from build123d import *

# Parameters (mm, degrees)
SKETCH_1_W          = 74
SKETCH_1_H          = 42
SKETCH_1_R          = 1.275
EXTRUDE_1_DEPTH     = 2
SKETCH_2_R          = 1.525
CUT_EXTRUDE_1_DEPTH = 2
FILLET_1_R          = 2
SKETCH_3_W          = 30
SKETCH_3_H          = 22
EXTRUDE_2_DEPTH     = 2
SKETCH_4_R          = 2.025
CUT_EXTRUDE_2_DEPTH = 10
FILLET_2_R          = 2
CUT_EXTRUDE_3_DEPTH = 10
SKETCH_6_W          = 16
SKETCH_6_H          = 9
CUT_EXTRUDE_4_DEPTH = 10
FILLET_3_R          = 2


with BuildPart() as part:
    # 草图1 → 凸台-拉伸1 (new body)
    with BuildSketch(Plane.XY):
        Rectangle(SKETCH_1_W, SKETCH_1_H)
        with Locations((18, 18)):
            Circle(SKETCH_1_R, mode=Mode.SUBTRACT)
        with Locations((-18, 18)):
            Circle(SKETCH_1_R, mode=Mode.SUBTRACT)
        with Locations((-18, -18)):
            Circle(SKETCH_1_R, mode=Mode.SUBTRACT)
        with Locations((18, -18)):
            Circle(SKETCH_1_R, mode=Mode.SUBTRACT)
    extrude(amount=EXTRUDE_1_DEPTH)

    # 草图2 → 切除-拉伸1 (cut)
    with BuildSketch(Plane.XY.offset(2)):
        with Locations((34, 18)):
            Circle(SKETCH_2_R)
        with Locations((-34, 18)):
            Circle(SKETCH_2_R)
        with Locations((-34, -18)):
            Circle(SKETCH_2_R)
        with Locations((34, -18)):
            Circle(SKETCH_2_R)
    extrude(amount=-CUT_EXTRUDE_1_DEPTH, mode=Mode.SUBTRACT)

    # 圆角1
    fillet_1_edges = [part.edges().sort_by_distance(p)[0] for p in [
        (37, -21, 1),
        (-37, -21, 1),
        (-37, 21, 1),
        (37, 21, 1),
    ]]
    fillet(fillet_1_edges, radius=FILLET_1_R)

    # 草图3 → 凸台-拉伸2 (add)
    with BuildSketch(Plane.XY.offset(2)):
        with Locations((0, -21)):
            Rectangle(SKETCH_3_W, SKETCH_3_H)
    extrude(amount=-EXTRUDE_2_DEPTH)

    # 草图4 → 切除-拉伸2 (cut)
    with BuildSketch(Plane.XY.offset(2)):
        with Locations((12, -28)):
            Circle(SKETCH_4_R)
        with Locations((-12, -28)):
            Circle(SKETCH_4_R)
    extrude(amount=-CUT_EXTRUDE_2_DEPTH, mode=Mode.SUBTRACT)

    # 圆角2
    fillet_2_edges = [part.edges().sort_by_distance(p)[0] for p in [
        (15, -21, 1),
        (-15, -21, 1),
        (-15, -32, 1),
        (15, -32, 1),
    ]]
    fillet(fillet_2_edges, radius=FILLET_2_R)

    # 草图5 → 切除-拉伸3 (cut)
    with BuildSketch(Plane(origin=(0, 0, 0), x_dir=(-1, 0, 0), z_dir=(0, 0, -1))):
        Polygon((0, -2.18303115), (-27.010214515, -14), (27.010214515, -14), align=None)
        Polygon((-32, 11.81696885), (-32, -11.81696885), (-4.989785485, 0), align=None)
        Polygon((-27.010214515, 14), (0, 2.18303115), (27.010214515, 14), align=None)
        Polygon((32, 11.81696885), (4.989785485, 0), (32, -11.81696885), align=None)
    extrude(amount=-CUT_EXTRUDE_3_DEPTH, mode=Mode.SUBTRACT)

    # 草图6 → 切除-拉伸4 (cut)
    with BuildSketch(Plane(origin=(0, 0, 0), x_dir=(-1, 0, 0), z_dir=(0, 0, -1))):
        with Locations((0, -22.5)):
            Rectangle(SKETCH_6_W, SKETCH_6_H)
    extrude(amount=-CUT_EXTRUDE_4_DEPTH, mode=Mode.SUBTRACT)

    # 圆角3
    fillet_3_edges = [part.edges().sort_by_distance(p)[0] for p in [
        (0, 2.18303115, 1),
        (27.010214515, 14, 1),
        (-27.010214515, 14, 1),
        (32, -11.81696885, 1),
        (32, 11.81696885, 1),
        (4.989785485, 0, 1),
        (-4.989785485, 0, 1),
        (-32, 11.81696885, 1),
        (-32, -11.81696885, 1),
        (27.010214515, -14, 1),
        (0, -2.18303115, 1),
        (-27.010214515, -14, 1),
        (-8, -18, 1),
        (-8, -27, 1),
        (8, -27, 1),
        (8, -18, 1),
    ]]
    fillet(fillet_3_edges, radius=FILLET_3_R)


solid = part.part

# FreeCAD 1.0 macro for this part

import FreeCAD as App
import Part
import Sketcher
from FreeCAD import Vector
Q = App.Units.Quantity


def edges_at(feature, points):
    """Names of the edges that pass closest to the given points."""
    edges = feature.Shape.Edges
    near = lambda p: min(range(len(edges)), key=lambda i: edges[i].distToShape(Part.Vertex(*p))[0])
    return sorted({f"Edge{near(p) + 1}" for p in points})

doc = App.newDocument("Part")
body = doc.addObject("PartDesign::Body", "Body")

sketch1 = body.newObject("Sketcher::SketchObject", "Sketch")
sketch1.AttachmentSupport = (doc.getObject("XY_Plane"), [""])
sketch1.MapMode = "FlatFace"
sketch1.addGeometry(Part.LineSegment(Vector(-37, 21, 0), Vector(-37, -21, 0)), False)
sketch1.addGeometry(Part.LineSegment(Vector(-37, -21, 0), Vector(37, -21, 0)), False)
sketch1.addGeometry(Part.LineSegment(Vector(37, -21, 0), Vector(37, 21, 0)), False)
sketch1.addGeometry(Part.LineSegment(Vector(37, 21, 0), Vector(-37, 21, 0)), False)
sketch1.addGeometry(Part.Circle(Vector(-18, -18, 0), Vector(0, 0, 1), 1.3), False)
sketch1.addGeometry(Part.Circle(Vector(18, -18, 0), Vector(0, 0, 1), 1.3), False)
sketch1.addGeometry(Part.Circle(Vector(-18, 18, 0), Vector(0, 0, 1), 1.3), False)
sketch1.addGeometry(Part.Circle(Vector(18, 18, 0), Vector(0, 0, 1), 1.3), False)
sketch1.addConstraint(Sketcher.Constraint("Coincident", 0, 2, 1, 1))
sketch1.addConstraint(Sketcher.Constraint("Coincident", 1, 2, 2, 1))
sketch1.addConstraint(Sketcher.Constraint("Coincident", 2, 2, 3, 1))
sketch1.addConstraint(Sketcher.Constraint("Coincident", 3, 2, 0, 1))
sketch1.addConstraint(Sketcher.Constraint("Vertical", 0))
sketch1.addConstraint(Sketcher.Constraint("Horizontal", 1))
sketch1.addConstraint(Sketcher.Constraint("Vertical", 2))
sketch1.addConstraint(Sketcher.Constraint("Horizontal", 3))
sketch1.addConstraint(Sketcher.Constraint("Equal", 4, 5))
sketch1.addConstraint(Sketcher.Constraint("Equal", 5, 6))
sketch1.addConstraint(Sketcher.Constraint("Equal", 6, 7))
sketch1.addConstraint(Sketcher.Constraint("Symmetric", 5, 3, 6, 3, -1, 1))
sketch1.addConstraint(Sketcher.Constraint("Symmetric", 4, 3, 7, 3, -1, 1))
sketch1.addConstraint(Sketcher.Constraint("Symmetric", 0, 2, 2, 2, -1, 1))
sketch1.addConstraint(Sketcher.Constraint("Symmetric", 4, 3, 5, 3, -2))
sketch1.addConstraint(Sketcher.Constraint("Diameter", 4, Q("2.55 mm")))
sketch1.addConstraint(Sketcher.Constraint("DistanceX", 1, 1, 1, 2, Q("74 mm")))
sketch1.addConstraint(Sketcher.Constraint("DistanceY", 0, 2, 0, 1, Q("42 mm")))
sketch1.addConstraint(Sketcher.Constraint("DistanceX", 4, 3, -1, 1, Q("18 mm")))
sketch1.addConstraint(Sketcher.Constraint("DistanceY", 4, 3, -1, 1, Q("18 mm")))
pad1 = body.newObject("PartDesign::Pad", "Pad")
pad1.Profile = sketch1
pad1.Length = 2

sketch2 = body.newObject("Sketcher::SketchObject", "Sketch001")
sketch2.AttachmentSupport = (doc.getObject("XY_Plane"), [""])
sketch2.MapMode = "FlatFace"
sketch2.AttachmentOffset = App.Placement(Vector(0, 0, 2), App.Rotation())
sketch2.addGeometry(Part.Circle(Vector(34, 18, 0), Vector(0, 0, 1), 1.5), False)
sketch2.addGeometry(Part.Circle(Vector(-34, 18, 0), Vector(0, 0, 1), 1.5), False)
sketch2.addGeometry(Part.Circle(Vector(-34, -18, 0), Vector(0, 0, 1), 1.5), False)
sketch2.addGeometry(Part.Circle(Vector(34, -18, 0), Vector(0, 0, 1), 1.5), False)
sketch2.addConstraint(Sketcher.Constraint("Equal", 0, 1))
sketch2.addConstraint(Sketcher.Constraint("Equal", 1, 2))
sketch2.addConstraint(Sketcher.Constraint("Equal", 2, 3))
sketch2.addConstraint(Sketcher.Constraint("Symmetric", 0, 3, 2, 3, -1, 1))
sketch2.addConstraint(Sketcher.Constraint("Symmetric", 1, 3, 3, 3, -1, 1))
sketch2.addConstraint(Sketcher.Constraint("Symmetric", 0, 3, 1, 3, -2))
sketch2.addConstraint(Sketcher.Constraint("Diameter", 0, Q("3.05 mm")))
sketch2.addConstraint(Sketcher.Constraint("DistanceX", -1, 1, 0, 3, Q("34 mm")))
sketch2.addConstraint(Sketcher.Constraint("DistanceY", -1, 1, 0, 3, Q("18 mm")))
pocket1 = body.newObject("PartDesign::Pocket", "Pocket")
pocket1.Profile = sketch2
pocket1.Length = 2
doc.recompute()

fillet = body.newObject("PartDesign::Fillet", "Fillet")
fillet.Base = (pocket1, edges_at(pocket1, [
    (37, -21, 1),
    (-37, -21, 1),
    (-37, 21, 1),
    (37, 21, 1),
]))
fillet.Radius = 2

sketch3 = body.newObject("Sketcher::SketchObject", "Sketch002")
sketch3.AttachmentSupport = (doc.getObject("XY_Plane"), [""])
sketch3.MapMode = "FlatFace"
sketch3.AttachmentOffset = App.Placement(Vector(0, 0, 2), App.Rotation())
sketch3.addGeometry(Part.LineSegment(Vector(-15, -10, 0), Vector(-15, -32, 0)), False)
sketch3.addGeometry(Part.LineSegment(Vector(-15, -32, 0), Vector(15, -32, 0)), False)
sketch3.addGeometry(Part.LineSegment(Vector(15, -32, 0), Vector(15, -10, 0)), False)
sketch3.addGeometry(Part.LineSegment(Vector(15, -10, 0), Vector(-15, -10, 0)), False)
sketch3.addConstraint(Sketcher.Constraint("Coincident", 0, 2, 1, 1))
sketch3.addConstraint(Sketcher.Constraint("Coincident", 1, 2, 2, 1))
sketch3.addConstraint(Sketcher.Constraint("Coincident", 2, 2, 3, 1))
sketch3.addConstraint(Sketcher.Constraint("Coincident", 3, 2, 0, 1))
sketch3.addConstraint(Sketcher.Constraint("Vertical", 0))
sketch3.addConstraint(Sketcher.Constraint("Horizontal", 1))
sketch3.addConstraint(Sketcher.Constraint("Vertical", 2))
sketch3.addConstraint(Sketcher.Constraint("Horizontal", 3))
sketch3.addConstraint(Sketcher.Constraint("DistanceX", 1, 1, 1, 2, Q("30 mm")))
sketch3.addConstraint(Sketcher.Constraint("DistanceY", 0, 2, 0, 1, Q("22 mm")))
sketch3.addConstraint(Sketcher.Constraint("DistanceX", 0, 2, -1, 1, Q("15 mm")))
sketch3.addConstraint(Sketcher.Constraint("DistanceY", 0, 2, -1, 1, Q("32 mm")))
pad2 = body.newObject("PartDesign::Pad", "Pad001")
pad2.Profile = sketch3
pad2.Length = 2
pad2.Reversed = True

sketch4 = body.newObject("Sketcher::SketchObject", "Sketch003")
sketch4.AttachmentSupport = (doc.getObject("XY_Plane"), [""])
sketch4.MapMode = "FlatFace"
sketch4.AttachmentOffset = App.Placement(Vector(0, 0, 2), App.Rotation())
sketch4.addGeometry(Part.Circle(Vector(12, -28, 0), Vector(0, 0, 1), 2), False)
sketch4.addGeometry(Part.Circle(Vector(-12, -28, 0), Vector(0, 0, 1), 2), False)
sketch4.addConstraint(Sketcher.Constraint("Equal", 0, 1))
sketch4.addConstraint(Sketcher.Constraint("Symmetric", 0, 3, 1, 3, -2))
sketch4.addConstraint(Sketcher.Constraint("Diameter", 0, Q("4.05 mm")))
sketch4.addConstraint(Sketcher.Constraint("DistanceX", -1, 1, 0, 3, Q("12 mm")))
sketch4.addConstraint(Sketcher.Constraint("DistanceY", 0, 3, -1, 1, Q("28 mm")))
pocket2 = body.newObject("PartDesign::Pocket", "Pocket001")
pocket2.Profile = sketch4
pocket2.Length = 10
doc.recompute()

fillet2 = body.newObject("PartDesign::Fillet", "Fillet001")
fillet2.Base = (pocket2, edges_at(pocket2, [
    (15, -21, 1),
    (-15, -21, 1),
    (-15, -32, 1),
    (15, -32, 1),
]))
fillet2.Radius = 2

sketch5 = body.newObject("Sketcher::SketchObject", "Sketch004")
sketch5.AttachmentSupport = (doc.getObject("XY_Plane"), [""])
sketch5.MapMode = "FlatFace"
sketch5.addGeometry(Part.LineSegment(Vector(0, -2, 0), Vector(27, -14, 0)), False)
sketch5.addGeometry(Part.LineSegment(Vector(27, -14, 0), Vector(-27, -14, 0)), False)
sketch5.addGeometry(Part.LineSegment(Vector(-27, -14, 0), Vector(0, -2, 0)), False)
sketch5.addGeometry(Part.LineSegment(Vector(32, 12, 0), Vector(32, -12, 0)), False)
sketch5.addGeometry(Part.LineSegment(Vector(32, -12, 0), Vector(5, 0, 0)), False)
sketch5.addGeometry(Part.LineSegment(Vector(5, 0, 0), Vector(32, 12, 0)), False)
sketch5.addGeometry(Part.LineSegment(Vector(27, 14, 0), Vector(0, 2, 0)), False)
sketch5.addGeometry(Part.LineSegment(Vector(0, 2, 0), Vector(-27, 14, 0)), False)
sketch5.addGeometry(Part.LineSegment(Vector(-27, 14, 0), Vector(27, 14, 0)), False)
sketch5.addGeometry(Part.LineSegment(Vector(-32, 12, 0), Vector(-5, 0, 0)), False)
sketch5.addGeometry(Part.LineSegment(Vector(-5, 0, 0), Vector(-32, -12, 0)), False)
sketch5.addGeometry(Part.LineSegment(Vector(-32, -12, 0), Vector(-32, 12, 0)), False)
sketch5.addConstraint(Sketcher.Constraint("Coincident", 0, 2, 1, 1))
sketch5.addConstraint(Sketcher.Constraint("Coincident", 1, 2, 2, 1))
sketch5.addConstraint(Sketcher.Constraint("Coincident", 2, 2, 0, 1))
sketch5.addConstraint(Sketcher.Constraint("Coincident", 3, 2, 4, 1))
sketch5.addConstraint(Sketcher.Constraint("Coincident", 4, 2, 5, 1))
sketch5.addConstraint(Sketcher.Constraint("Coincident", 5, 2, 3, 1))
sketch5.addConstraint(Sketcher.Constraint("Coincident", 6, 2, 7, 1))
sketch5.addConstraint(Sketcher.Constraint("Coincident", 7, 2, 8, 1))
sketch5.addConstraint(Sketcher.Constraint("Coincident", 8, 2, 6, 1))
sketch5.addConstraint(Sketcher.Constraint("Coincident", 9, 2, 10, 1))
sketch5.addConstraint(Sketcher.Constraint("Coincident", 10, 2, 11, 1))
sketch5.addConstraint(Sketcher.Constraint("Coincident", 11, 2, 9, 1))
sketch5.addConstraint(Sketcher.Constraint("Horizontal", 1))
sketch5.addConstraint(Sketcher.Constraint("Vertical", 3))
sketch5.addConstraint(Sketcher.Constraint("Horizontal", 8))
sketch5.addConstraint(Sketcher.Constraint("Vertical", 11))
sketch5.addConstraint(Sketcher.Constraint("Symmetric", 2, 2, 6, 2, -1, 1))
sketch5.addConstraint(Sketcher.Constraint("Symmetric", 0, 2, 7, 2, -1, 1))
sketch5.addConstraint(Sketcher.Constraint("Symmetric", 4, 2, 9, 2, -1, 1))
sketch5.addConstraint(Sketcher.Constraint("Symmetric", 5, 2, 10, 2, -1, 1))
sketch5.addConstraint(Sketcher.Constraint("PointOnObject", 2, 2, -2))
sketch5.addConstraint(Sketcher.Constraint("PointOnObject", 4, 2, -1))
sketch5.addConstraint(Sketcher.Constraint("Parallel", 0, 4))
sketch5.addConstraint(Sketcher.Constraint("Parallel", 2, 5))
sketch5.addConstraint(Sketcher.Constraint("Parallel", 5, 6))
sketch5.addConstraint(Sketcher.Constraint("Parallel", 7, 9))
sketch5.addConstraint(Sketcher.Constraint("Horizontal", 3, 2, 10, 2))
sketch5.addConstraint(Sketcher.Constraint("Equal", 2, 4))
sketch5.addConstraint(Sketcher.Constraint("DistanceY", 0, 2, -1, 1, Q("14 mm")))
sketch5.addConstraint(Sketcher.Constraint("DistanceX", -1, 1, 3, 2, Q("32 mm")))
sketch5.addConstraint(Sketcher.Constraint("DistanceX", 1, 2, 1, 1, Q("54.020429 mm")))
sketch5.addConstraint(Sketcher.Constraint("Distance", 0, Q("29.48207 mm")))
pocket3 = body.newObject("PartDesign::Pocket", "Pocket002")
pocket3.Profile = sketch5
pocket3.Length = 10
pocket3.Reversed = True

sketch6 = body.newObject("Sketcher::SketchObject", "Sketch005")
sketch6.AttachmentSupport = (doc.getObject("XY_Plane"), [""])
sketch6.MapMode = "FlatFace"
sketch6.addGeometry(Part.LineSegment(Vector(8, -18, 0), Vector(8, -27, 0)), False)
sketch6.addGeometry(Part.LineSegment(Vector(8, -27, 0), Vector(-8, -27, 0)), False)
sketch6.addGeometry(Part.LineSegment(Vector(-8, -27, 0), Vector(-8, -18, 0)), False)
sketch6.addGeometry(Part.LineSegment(Vector(-8, -18, 0), Vector(8, -18, 0)), False)
sketch6.addConstraint(Sketcher.Constraint("Coincident", 0, 2, 1, 1))
sketch6.addConstraint(Sketcher.Constraint("Coincident", 1, 2, 2, 1))
sketch6.addConstraint(Sketcher.Constraint("Coincident", 2, 2, 3, 1))
sketch6.addConstraint(Sketcher.Constraint("Coincident", 3, 2, 0, 1))
sketch6.addConstraint(Sketcher.Constraint("Vertical", 0))
sketch6.addConstraint(Sketcher.Constraint("Horizontal", 1))
sketch6.addConstraint(Sketcher.Constraint("Vertical", 2))
sketch6.addConstraint(Sketcher.Constraint("Horizontal", 3))
sketch6.addConstraint(Sketcher.Constraint("DistanceX", 1, 2, 1, 1, Q("16 mm")))
sketch6.addConstraint(Sketcher.Constraint("DistanceY", 0, 2, 0, 1, Q("9 mm")))
sketch6.addConstraint(Sketcher.Constraint("DistanceX", -1, 1, 0, 2, Q("8 mm")))
sketch6.addConstraint(Sketcher.Constraint("DistanceY", 0, 2, -1, 1, Q("27 mm")))
pocket4 = body.newObject("PartDesign::Pocket", "Pocket003")
pocket4.Profile = sketch6
pocket4.Length = 10
pocket4.Reversed = True
doc.recompute()

fillet3 = body.newObject("PartDesign::Fillet", "Fillet002")
fillet3.Base = (pocket4, edges_at(pocket4, [
    (0, 2.183, 1),
    (27.01, 14, 1),
    (-27.01, 14, 1),
    (32, -11.817, 1),
    (32, 11.817, 1),
    (4.99, 0, 1),
    (-4.99, 0, 1),
    (-32, 11.817, 1),
    (-32, -11.817, 1),
    (27.01, -14, 1),
    (0, -2.183, 1),
    (-27.01, -14, 1),
    (-8, -18, 1),
    (-8, -27, 1),
    (8, -27, 1),
    (8, -18, 1),
]))
fillet3.Radius = 2

doc.recompute()
